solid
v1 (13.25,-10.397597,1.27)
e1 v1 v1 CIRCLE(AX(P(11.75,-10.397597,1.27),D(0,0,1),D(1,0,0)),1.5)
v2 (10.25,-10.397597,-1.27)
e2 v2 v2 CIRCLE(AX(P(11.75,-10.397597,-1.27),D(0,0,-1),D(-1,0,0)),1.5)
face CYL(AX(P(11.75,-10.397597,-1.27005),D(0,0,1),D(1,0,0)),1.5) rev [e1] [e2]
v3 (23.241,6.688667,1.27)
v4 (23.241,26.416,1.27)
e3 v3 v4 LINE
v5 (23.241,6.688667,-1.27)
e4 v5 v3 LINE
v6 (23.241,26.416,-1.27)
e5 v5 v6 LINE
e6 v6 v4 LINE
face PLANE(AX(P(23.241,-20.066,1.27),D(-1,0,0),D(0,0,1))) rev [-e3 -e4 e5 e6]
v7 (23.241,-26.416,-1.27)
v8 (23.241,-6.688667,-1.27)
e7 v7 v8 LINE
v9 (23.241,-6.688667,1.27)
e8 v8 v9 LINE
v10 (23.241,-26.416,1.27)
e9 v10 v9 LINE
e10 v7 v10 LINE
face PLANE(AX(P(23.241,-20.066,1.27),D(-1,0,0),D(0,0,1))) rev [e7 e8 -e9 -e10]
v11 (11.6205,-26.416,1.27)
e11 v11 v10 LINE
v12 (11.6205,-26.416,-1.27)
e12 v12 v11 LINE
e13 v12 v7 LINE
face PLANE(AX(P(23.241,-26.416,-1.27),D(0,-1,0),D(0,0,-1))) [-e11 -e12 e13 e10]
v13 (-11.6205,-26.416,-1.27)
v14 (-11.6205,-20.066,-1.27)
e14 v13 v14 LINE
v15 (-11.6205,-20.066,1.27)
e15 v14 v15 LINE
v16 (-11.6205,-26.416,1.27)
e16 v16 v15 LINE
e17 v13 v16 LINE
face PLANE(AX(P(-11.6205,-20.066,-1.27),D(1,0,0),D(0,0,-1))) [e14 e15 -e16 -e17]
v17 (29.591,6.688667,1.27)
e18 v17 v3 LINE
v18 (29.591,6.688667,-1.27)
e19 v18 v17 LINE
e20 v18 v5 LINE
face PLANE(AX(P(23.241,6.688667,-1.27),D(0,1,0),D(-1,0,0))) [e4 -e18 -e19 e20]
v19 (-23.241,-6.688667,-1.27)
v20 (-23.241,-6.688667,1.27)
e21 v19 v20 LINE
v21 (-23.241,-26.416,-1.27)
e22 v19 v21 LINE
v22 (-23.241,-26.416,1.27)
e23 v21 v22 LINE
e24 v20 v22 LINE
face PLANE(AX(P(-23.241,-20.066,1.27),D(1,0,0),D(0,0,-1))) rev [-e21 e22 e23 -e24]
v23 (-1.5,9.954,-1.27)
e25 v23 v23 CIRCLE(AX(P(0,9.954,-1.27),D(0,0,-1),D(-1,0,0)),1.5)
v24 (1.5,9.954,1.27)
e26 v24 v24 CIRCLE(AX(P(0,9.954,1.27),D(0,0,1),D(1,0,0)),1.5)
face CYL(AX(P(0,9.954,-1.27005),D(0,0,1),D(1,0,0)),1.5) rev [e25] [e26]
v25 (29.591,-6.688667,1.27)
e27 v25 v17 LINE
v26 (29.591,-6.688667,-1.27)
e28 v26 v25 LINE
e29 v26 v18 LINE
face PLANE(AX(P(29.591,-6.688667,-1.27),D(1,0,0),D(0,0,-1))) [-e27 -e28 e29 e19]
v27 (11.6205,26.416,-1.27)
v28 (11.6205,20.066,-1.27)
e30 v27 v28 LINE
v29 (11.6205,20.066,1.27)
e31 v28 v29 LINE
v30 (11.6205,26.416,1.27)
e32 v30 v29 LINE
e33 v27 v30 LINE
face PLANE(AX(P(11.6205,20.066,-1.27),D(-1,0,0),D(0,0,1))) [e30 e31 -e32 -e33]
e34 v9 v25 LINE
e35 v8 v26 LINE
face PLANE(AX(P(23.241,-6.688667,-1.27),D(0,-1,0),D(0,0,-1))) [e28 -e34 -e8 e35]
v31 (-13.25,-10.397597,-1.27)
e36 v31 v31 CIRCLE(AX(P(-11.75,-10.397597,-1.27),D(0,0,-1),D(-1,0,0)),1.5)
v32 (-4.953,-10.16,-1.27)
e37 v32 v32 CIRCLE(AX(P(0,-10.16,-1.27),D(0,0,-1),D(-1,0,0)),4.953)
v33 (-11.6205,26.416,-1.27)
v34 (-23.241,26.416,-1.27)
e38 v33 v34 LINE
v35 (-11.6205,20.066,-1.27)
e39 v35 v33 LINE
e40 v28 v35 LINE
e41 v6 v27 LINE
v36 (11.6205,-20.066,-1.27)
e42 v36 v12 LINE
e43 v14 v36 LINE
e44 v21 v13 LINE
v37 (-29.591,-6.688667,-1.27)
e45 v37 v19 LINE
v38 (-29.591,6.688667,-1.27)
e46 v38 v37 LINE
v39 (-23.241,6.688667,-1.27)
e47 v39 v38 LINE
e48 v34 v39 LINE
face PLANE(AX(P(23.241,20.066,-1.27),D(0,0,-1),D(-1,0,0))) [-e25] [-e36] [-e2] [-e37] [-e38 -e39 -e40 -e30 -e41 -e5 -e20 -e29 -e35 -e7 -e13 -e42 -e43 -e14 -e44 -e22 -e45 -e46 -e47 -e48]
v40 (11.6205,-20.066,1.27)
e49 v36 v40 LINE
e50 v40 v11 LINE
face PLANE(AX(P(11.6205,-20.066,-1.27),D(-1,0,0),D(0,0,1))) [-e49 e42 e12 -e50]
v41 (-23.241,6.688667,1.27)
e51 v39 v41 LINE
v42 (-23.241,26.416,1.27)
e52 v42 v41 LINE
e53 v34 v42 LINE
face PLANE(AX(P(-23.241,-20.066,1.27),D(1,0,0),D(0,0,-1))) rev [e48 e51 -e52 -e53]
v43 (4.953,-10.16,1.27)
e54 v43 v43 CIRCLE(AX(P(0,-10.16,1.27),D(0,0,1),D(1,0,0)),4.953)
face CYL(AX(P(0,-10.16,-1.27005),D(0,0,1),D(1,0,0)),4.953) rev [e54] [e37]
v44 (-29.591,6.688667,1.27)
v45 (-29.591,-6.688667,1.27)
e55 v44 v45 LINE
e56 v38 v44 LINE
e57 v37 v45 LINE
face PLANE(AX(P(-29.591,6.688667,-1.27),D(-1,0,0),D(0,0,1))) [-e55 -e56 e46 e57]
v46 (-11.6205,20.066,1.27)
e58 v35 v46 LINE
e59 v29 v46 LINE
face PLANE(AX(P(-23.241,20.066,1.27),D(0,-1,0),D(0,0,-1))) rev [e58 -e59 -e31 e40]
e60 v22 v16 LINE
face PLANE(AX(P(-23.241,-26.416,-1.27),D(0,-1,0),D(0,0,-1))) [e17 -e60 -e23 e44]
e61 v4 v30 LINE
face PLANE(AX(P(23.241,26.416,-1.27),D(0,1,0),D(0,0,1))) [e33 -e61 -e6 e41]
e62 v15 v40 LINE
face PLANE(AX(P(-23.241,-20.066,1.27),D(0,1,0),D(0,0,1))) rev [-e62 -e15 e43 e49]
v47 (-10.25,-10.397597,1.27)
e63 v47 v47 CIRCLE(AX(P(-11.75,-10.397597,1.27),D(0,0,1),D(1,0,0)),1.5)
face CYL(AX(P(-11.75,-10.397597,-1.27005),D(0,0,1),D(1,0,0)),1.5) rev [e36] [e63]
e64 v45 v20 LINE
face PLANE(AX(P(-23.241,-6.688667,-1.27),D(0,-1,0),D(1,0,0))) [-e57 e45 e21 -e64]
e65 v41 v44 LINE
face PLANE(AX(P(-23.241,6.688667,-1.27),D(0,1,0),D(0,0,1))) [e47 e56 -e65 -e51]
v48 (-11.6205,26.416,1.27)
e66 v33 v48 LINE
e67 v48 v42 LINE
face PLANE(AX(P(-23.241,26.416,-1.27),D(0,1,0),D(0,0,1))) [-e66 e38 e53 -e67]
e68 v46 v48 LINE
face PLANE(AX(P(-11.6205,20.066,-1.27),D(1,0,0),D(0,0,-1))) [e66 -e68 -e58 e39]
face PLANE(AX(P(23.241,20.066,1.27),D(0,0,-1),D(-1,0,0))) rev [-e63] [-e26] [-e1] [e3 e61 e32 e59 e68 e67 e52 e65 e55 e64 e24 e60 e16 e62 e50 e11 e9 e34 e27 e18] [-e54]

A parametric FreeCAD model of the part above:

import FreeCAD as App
import Part
import Sketcher
Q = App.Units.Quantity


def add_polygon(sketch, points):
    """Adds a closed chain of lines whose ends are joined by coincident constraints."""
    first, n = sketch.GeometryCount, len(points)
    for a, b in zip(points, points[1:] + points[:1]):
        sketch.addGeometry(Part.LineSegment(App.Vector(*a, 0), App.Vector(*b, 0)), False)
    for i in range(n):
        sketch.addConstraint(Sketcher.Constraint("Coincident", first + i, 2, first + (i + 1) % n, 1))

doc = App.newDocument("Part")
params = doc.addObject("Spreadsheet::Sheet", "Params")
for row, (alias, value) in enumerate([
    ("sketch1_width", "1.83 in"),
    ("sketch1_height", "1.58 in"),
    ("pad1_length", "0.1 in"),
    ("sketch2_width", "0.25 in"),
    ("sketch3_diameter", "0.39 in"),
], start=1):
    params.set(f"A{row}", alias)
    params.set(f"B{row}", "=" + value)
    params.setAlias(f"B{row}", alias)

body = doc.addObject("PartDesign::Body", "Body")

sketch1 = body.newObject("Sketcher::SketchObject", "Sketch")
sketch1.AttachmentSupport = (doc.getObject("XY_Plane"), [""])
sketch1.MapMode = "FlatFace"
add_polygon(sketch1, [(-23, 20), (-23, -20), (23, -20), (23, 20)])
sketch1.addConstraint(Sketcher.Constraint("Vertical", 0))
sketch1.addConstraint(Sketcher.Constraint("Horizontal", 1))
sketch1.addConstraint(Sketcher.Constraint("Vertical", 2))
sketch1.addConstraint(Sketcher.Constraint("Horizontal", 3))
sketch1.addConstraint(Sketcher.Constraint("Symmetric", 0, 2, 2, 2, -1, 1))
sketch1.addConstraint(Sketcher.Constraint("DistanceX", 1, 1, 1, 2, Q("1.83 in")))
sketch1.addConstraint(Sketcher.Constraint("DistanceY", 0, 2, 0, 1, Q("1.58 in")))
sketch1.setExpression("Constraints[9]", "Params.sketch1_width")
sketch1.setExpression("Constraints[10]", "Params.sketch1_height")
pad1 = body.newObject("PartDesign::Pad", "Pad")
pad1.Profile = sketch1
pad1.setExpression("Length", "Params.pad1_length")
pad1.Midplane = True

sketch2 = body.newObject("Sketcher::SketchObject", "Sketch001")
sketch2.AttachmentSupport = (doc.getObject("XY_Plane"), [""])
sketch2.MapMode = "FlatFace"
sketch2.AttachmentOffset = App.Placement(App.Vector(0, 0, 0.05 * 25.4), App.Rotation())
add_polygon(sketch2, [(-23, 26), (-23, 20), (-12, 20), (-12, 26)])
add_polygon(sketch2, [(12, 26), (12, 20), (23, 20), (23, 26)])
add_polygon(sketch2, [(-30, 7), (-30, -7), (-23, -7), (-23, 7)])
add_polygon(sketch2, [(23, 7), (23, -7), (30, -7), (30, 7)])
add_polygon(sketch2, [(-23, -20), (-23, -26), (-12, -26), (-12, -20)])
add_polygon(sketch2, [(12, -20), (12, -26), (23, -26), (23, -20)])
sketch2.addConstraint(Sketcher.Constraint("Vertical", 0))
sketch2.addConstraint(Sketcher.Constraint("Horizontal", 1))
sketch2.addConstraint(Sketcher.Constraint("Vertical", 2))
sketch2.addConstraint(Sketcher.Constraint("Horizontal", 3))
sketch2.addConstraint(Sketcher.Constraint("Vertical", 4))
sketch2.addConstraint(Sketcher.Constraint("Horizontal", 5))
sketch2.addConstraint(Sketcher.Constraint("Vertical", 6))
sketch2.addConstraint(Sketcher.Constraint("Horizontal", 7))
sketch2.addConstraint(Sketcher.Constraint("Vertical", 8))
sketch2.addConstraint(Sketcher.Constraint("Horizontal", 9))
sketch2.addConstraint(Sketcher.Constraint("Vertical", 10))
sketch2.addConstraint(Sketcher.Constraint("Horizontal", 11))
sketch2.addConstraint(Sketcher.Constraint("Vertical", 12))
sketch2.addConstraint(Sketcher.Constraint("Horizontal", 13))
sketch2.addConstraint(Sketcher.Constraint("Vertical", 14))
sketch2.addConstraint(Sketcher.Constraint("Horizontal", 15))
sketch2.addConstraint(Sketcher.Constraint("Vertical", 16))
sketch2.addConstraint(Sketcher.Constraint("Horizontal", 17))
sketch2.addConstraint(Sketcher.Constraint("Vertical", 18))
sketch2.addConstraint(Sketcher.Constraint("Horizontal", 19))
sketch2.addConstraint(Sketcher.Constraint("Vertical", 20))
sketch2.addConstraint(Sketcher.Constraint("Horizontal", 21))
sketch2.addConstraint(Sketcher.Constraint("Vertical", 22))
sketch2.addConstraint(Sketcher.Constraint("Horizontal", 23))
sketch2.addConstraint(Sketcher.Constraint("Symmetric", 10, 2, 12, 2, -1, 1))
sketch2.addConstraint(Sketcher.Constraint("Symmetric", 8, 2, 14, 2, -1, 1))
sketch2.addConstraint(Sketcher.Constraint("Symmetric", 6, 2, 16, 2, -1, 1))
sketch2.addConstraint(Sketcher.Constraint("Symmetric", 4, 2, 18, 2, -1, 1))
sketch2.addConstraint(Sketcher.Constraint("Symmetric", 2, 2, 20, 2, -1, 1))
sketch2.addConstraint(Sketcher.Constraint("Symmetric", 0, 2, 22, 2, -1, 1))
sketch2.addConstraint(Sketcher.Constraint("Symmetric", 1, 2, 4, 2, -2))
sketch2.addConstraint(Sketcher.Constraint("Symmetric", 3, 2, 6, 2, -2))
sketch2.addConstraint(Sketcher.Constraint("Horizontal", 9, 2, 12, 2))
sketch2.addConstraint(Sketcher.Constraint("Vertical", 3, 2, 9, 2))
sketch2.addConstraint(Sketcher.Constraint("Equal", 15, 0))
sketch2.addConstraint(Sketcher.Constraint("DistanceX", 9, 1, 9, 2, Q("0.25 in")))
sketch2.addConstraint(Sketcher.Constraint("DistanceY", -1, 1, 0, 2, Q("0.79 in")))
sketch2.addConstraint(Sketcher.Constraint("DistanceX", 0, 2, 5, 2, Q("1.83 in")))
sketch2.addConstraint(Sketcher.Constraint("DistanceX", 1, 1, 1, 2, Q("0.4575 in")))
sketch2.addConstraint(Sketcher.Constraint("DistanceY", 8, 2, 8, 1, Q("13.377333 mm")))
sketch2.setExpression("Constraints[59]", "Params.sketch2_width")
pad2 = body.newObject("PartDesign::Pad", "Pad001")
pad2.Profile = sketch2
pad2.Type = "UpToLast"
pad2.Reversed = True

sketch3 = body.newObject("Sketcher::SketchObject", "Sketch002")
sketch3.AttachmentSupport = (doc.getObject("XY_Plane"), [""])
sketch3.MapMode = "FlatFace"
sketch3.AttachmentOffset = App.Placement(App.Vector(0, 0, 0.05 * 25.4), App.Rotation())
sketch3.addGeometry(Part.Circle(App.Vector(0, 10, 0), App.Vector(0, 0, 1), 1.5), False)
sketch3.addGeometry(Part.Circle(App.Vector(0, -10.2, 0), App.Vector(0, 0, 1), 5), False)
sketch3.addGeometry(Part.Circle(App.Vector(-11.8, -10.4, 0), App.Vector(0, 0, 1), 1.5), False)
sketch3.addGeometry(Part.Circle(App.Vector(11.8, -10.4, 0), App.Vector(0, 0, 1), 1.5), False)
sketch3.addConstraint(Sketcher.Constraint("Equal", 0, 2))
sketch3.addConstraint(Sketcher.Constraint("Equal", 2, 3))
sketch3.addConstraint(Sketcher.Constraint("Symmetric", 2, 3, 3, 3, -2))
sketch3.addConstraint(Sketcher.Constraint("PointOnObject", 0, 3, -2))
sketch3.addConstraint(Sketcher.Constraint("PointOnObject", 1, 3, -2))
sketch3.addConstraint(Sketcher.Constraint("Diameter", 1, Q("0.39 in")))
sketch3.addConstraint(Sketcher.Constraint("DistanceY", 1, 3, -1, 1, Q("0.4 in")))
sketch3.addConstraint(Sketcher.Constraint("Diameter", 0, Q("3 mm")))
sketch3.addConstraint(Sketcher.Constraint("DistanceY", -1, 1, 0, 3, Q("9.954 mm")))
sketch3.addConstraint(Sketcher.Constraint("DistanceX", 2, 3, -1, 1, Q("11.75 mm")))
sketch3.addConstraint(Sketcher.Constraint("DistanceY", 2, 3, -1, 1, Q("10.397597 mm")))
sketch3.setExpression("Constraints[5]", "Params.sketch3_diameter")
pocket1 = body.newObject("PartDesign::Pocket", "Pocket")
pocket1.Profile = sketch3
pocket1.Type = "ThroughAll"

doc.recompute()
